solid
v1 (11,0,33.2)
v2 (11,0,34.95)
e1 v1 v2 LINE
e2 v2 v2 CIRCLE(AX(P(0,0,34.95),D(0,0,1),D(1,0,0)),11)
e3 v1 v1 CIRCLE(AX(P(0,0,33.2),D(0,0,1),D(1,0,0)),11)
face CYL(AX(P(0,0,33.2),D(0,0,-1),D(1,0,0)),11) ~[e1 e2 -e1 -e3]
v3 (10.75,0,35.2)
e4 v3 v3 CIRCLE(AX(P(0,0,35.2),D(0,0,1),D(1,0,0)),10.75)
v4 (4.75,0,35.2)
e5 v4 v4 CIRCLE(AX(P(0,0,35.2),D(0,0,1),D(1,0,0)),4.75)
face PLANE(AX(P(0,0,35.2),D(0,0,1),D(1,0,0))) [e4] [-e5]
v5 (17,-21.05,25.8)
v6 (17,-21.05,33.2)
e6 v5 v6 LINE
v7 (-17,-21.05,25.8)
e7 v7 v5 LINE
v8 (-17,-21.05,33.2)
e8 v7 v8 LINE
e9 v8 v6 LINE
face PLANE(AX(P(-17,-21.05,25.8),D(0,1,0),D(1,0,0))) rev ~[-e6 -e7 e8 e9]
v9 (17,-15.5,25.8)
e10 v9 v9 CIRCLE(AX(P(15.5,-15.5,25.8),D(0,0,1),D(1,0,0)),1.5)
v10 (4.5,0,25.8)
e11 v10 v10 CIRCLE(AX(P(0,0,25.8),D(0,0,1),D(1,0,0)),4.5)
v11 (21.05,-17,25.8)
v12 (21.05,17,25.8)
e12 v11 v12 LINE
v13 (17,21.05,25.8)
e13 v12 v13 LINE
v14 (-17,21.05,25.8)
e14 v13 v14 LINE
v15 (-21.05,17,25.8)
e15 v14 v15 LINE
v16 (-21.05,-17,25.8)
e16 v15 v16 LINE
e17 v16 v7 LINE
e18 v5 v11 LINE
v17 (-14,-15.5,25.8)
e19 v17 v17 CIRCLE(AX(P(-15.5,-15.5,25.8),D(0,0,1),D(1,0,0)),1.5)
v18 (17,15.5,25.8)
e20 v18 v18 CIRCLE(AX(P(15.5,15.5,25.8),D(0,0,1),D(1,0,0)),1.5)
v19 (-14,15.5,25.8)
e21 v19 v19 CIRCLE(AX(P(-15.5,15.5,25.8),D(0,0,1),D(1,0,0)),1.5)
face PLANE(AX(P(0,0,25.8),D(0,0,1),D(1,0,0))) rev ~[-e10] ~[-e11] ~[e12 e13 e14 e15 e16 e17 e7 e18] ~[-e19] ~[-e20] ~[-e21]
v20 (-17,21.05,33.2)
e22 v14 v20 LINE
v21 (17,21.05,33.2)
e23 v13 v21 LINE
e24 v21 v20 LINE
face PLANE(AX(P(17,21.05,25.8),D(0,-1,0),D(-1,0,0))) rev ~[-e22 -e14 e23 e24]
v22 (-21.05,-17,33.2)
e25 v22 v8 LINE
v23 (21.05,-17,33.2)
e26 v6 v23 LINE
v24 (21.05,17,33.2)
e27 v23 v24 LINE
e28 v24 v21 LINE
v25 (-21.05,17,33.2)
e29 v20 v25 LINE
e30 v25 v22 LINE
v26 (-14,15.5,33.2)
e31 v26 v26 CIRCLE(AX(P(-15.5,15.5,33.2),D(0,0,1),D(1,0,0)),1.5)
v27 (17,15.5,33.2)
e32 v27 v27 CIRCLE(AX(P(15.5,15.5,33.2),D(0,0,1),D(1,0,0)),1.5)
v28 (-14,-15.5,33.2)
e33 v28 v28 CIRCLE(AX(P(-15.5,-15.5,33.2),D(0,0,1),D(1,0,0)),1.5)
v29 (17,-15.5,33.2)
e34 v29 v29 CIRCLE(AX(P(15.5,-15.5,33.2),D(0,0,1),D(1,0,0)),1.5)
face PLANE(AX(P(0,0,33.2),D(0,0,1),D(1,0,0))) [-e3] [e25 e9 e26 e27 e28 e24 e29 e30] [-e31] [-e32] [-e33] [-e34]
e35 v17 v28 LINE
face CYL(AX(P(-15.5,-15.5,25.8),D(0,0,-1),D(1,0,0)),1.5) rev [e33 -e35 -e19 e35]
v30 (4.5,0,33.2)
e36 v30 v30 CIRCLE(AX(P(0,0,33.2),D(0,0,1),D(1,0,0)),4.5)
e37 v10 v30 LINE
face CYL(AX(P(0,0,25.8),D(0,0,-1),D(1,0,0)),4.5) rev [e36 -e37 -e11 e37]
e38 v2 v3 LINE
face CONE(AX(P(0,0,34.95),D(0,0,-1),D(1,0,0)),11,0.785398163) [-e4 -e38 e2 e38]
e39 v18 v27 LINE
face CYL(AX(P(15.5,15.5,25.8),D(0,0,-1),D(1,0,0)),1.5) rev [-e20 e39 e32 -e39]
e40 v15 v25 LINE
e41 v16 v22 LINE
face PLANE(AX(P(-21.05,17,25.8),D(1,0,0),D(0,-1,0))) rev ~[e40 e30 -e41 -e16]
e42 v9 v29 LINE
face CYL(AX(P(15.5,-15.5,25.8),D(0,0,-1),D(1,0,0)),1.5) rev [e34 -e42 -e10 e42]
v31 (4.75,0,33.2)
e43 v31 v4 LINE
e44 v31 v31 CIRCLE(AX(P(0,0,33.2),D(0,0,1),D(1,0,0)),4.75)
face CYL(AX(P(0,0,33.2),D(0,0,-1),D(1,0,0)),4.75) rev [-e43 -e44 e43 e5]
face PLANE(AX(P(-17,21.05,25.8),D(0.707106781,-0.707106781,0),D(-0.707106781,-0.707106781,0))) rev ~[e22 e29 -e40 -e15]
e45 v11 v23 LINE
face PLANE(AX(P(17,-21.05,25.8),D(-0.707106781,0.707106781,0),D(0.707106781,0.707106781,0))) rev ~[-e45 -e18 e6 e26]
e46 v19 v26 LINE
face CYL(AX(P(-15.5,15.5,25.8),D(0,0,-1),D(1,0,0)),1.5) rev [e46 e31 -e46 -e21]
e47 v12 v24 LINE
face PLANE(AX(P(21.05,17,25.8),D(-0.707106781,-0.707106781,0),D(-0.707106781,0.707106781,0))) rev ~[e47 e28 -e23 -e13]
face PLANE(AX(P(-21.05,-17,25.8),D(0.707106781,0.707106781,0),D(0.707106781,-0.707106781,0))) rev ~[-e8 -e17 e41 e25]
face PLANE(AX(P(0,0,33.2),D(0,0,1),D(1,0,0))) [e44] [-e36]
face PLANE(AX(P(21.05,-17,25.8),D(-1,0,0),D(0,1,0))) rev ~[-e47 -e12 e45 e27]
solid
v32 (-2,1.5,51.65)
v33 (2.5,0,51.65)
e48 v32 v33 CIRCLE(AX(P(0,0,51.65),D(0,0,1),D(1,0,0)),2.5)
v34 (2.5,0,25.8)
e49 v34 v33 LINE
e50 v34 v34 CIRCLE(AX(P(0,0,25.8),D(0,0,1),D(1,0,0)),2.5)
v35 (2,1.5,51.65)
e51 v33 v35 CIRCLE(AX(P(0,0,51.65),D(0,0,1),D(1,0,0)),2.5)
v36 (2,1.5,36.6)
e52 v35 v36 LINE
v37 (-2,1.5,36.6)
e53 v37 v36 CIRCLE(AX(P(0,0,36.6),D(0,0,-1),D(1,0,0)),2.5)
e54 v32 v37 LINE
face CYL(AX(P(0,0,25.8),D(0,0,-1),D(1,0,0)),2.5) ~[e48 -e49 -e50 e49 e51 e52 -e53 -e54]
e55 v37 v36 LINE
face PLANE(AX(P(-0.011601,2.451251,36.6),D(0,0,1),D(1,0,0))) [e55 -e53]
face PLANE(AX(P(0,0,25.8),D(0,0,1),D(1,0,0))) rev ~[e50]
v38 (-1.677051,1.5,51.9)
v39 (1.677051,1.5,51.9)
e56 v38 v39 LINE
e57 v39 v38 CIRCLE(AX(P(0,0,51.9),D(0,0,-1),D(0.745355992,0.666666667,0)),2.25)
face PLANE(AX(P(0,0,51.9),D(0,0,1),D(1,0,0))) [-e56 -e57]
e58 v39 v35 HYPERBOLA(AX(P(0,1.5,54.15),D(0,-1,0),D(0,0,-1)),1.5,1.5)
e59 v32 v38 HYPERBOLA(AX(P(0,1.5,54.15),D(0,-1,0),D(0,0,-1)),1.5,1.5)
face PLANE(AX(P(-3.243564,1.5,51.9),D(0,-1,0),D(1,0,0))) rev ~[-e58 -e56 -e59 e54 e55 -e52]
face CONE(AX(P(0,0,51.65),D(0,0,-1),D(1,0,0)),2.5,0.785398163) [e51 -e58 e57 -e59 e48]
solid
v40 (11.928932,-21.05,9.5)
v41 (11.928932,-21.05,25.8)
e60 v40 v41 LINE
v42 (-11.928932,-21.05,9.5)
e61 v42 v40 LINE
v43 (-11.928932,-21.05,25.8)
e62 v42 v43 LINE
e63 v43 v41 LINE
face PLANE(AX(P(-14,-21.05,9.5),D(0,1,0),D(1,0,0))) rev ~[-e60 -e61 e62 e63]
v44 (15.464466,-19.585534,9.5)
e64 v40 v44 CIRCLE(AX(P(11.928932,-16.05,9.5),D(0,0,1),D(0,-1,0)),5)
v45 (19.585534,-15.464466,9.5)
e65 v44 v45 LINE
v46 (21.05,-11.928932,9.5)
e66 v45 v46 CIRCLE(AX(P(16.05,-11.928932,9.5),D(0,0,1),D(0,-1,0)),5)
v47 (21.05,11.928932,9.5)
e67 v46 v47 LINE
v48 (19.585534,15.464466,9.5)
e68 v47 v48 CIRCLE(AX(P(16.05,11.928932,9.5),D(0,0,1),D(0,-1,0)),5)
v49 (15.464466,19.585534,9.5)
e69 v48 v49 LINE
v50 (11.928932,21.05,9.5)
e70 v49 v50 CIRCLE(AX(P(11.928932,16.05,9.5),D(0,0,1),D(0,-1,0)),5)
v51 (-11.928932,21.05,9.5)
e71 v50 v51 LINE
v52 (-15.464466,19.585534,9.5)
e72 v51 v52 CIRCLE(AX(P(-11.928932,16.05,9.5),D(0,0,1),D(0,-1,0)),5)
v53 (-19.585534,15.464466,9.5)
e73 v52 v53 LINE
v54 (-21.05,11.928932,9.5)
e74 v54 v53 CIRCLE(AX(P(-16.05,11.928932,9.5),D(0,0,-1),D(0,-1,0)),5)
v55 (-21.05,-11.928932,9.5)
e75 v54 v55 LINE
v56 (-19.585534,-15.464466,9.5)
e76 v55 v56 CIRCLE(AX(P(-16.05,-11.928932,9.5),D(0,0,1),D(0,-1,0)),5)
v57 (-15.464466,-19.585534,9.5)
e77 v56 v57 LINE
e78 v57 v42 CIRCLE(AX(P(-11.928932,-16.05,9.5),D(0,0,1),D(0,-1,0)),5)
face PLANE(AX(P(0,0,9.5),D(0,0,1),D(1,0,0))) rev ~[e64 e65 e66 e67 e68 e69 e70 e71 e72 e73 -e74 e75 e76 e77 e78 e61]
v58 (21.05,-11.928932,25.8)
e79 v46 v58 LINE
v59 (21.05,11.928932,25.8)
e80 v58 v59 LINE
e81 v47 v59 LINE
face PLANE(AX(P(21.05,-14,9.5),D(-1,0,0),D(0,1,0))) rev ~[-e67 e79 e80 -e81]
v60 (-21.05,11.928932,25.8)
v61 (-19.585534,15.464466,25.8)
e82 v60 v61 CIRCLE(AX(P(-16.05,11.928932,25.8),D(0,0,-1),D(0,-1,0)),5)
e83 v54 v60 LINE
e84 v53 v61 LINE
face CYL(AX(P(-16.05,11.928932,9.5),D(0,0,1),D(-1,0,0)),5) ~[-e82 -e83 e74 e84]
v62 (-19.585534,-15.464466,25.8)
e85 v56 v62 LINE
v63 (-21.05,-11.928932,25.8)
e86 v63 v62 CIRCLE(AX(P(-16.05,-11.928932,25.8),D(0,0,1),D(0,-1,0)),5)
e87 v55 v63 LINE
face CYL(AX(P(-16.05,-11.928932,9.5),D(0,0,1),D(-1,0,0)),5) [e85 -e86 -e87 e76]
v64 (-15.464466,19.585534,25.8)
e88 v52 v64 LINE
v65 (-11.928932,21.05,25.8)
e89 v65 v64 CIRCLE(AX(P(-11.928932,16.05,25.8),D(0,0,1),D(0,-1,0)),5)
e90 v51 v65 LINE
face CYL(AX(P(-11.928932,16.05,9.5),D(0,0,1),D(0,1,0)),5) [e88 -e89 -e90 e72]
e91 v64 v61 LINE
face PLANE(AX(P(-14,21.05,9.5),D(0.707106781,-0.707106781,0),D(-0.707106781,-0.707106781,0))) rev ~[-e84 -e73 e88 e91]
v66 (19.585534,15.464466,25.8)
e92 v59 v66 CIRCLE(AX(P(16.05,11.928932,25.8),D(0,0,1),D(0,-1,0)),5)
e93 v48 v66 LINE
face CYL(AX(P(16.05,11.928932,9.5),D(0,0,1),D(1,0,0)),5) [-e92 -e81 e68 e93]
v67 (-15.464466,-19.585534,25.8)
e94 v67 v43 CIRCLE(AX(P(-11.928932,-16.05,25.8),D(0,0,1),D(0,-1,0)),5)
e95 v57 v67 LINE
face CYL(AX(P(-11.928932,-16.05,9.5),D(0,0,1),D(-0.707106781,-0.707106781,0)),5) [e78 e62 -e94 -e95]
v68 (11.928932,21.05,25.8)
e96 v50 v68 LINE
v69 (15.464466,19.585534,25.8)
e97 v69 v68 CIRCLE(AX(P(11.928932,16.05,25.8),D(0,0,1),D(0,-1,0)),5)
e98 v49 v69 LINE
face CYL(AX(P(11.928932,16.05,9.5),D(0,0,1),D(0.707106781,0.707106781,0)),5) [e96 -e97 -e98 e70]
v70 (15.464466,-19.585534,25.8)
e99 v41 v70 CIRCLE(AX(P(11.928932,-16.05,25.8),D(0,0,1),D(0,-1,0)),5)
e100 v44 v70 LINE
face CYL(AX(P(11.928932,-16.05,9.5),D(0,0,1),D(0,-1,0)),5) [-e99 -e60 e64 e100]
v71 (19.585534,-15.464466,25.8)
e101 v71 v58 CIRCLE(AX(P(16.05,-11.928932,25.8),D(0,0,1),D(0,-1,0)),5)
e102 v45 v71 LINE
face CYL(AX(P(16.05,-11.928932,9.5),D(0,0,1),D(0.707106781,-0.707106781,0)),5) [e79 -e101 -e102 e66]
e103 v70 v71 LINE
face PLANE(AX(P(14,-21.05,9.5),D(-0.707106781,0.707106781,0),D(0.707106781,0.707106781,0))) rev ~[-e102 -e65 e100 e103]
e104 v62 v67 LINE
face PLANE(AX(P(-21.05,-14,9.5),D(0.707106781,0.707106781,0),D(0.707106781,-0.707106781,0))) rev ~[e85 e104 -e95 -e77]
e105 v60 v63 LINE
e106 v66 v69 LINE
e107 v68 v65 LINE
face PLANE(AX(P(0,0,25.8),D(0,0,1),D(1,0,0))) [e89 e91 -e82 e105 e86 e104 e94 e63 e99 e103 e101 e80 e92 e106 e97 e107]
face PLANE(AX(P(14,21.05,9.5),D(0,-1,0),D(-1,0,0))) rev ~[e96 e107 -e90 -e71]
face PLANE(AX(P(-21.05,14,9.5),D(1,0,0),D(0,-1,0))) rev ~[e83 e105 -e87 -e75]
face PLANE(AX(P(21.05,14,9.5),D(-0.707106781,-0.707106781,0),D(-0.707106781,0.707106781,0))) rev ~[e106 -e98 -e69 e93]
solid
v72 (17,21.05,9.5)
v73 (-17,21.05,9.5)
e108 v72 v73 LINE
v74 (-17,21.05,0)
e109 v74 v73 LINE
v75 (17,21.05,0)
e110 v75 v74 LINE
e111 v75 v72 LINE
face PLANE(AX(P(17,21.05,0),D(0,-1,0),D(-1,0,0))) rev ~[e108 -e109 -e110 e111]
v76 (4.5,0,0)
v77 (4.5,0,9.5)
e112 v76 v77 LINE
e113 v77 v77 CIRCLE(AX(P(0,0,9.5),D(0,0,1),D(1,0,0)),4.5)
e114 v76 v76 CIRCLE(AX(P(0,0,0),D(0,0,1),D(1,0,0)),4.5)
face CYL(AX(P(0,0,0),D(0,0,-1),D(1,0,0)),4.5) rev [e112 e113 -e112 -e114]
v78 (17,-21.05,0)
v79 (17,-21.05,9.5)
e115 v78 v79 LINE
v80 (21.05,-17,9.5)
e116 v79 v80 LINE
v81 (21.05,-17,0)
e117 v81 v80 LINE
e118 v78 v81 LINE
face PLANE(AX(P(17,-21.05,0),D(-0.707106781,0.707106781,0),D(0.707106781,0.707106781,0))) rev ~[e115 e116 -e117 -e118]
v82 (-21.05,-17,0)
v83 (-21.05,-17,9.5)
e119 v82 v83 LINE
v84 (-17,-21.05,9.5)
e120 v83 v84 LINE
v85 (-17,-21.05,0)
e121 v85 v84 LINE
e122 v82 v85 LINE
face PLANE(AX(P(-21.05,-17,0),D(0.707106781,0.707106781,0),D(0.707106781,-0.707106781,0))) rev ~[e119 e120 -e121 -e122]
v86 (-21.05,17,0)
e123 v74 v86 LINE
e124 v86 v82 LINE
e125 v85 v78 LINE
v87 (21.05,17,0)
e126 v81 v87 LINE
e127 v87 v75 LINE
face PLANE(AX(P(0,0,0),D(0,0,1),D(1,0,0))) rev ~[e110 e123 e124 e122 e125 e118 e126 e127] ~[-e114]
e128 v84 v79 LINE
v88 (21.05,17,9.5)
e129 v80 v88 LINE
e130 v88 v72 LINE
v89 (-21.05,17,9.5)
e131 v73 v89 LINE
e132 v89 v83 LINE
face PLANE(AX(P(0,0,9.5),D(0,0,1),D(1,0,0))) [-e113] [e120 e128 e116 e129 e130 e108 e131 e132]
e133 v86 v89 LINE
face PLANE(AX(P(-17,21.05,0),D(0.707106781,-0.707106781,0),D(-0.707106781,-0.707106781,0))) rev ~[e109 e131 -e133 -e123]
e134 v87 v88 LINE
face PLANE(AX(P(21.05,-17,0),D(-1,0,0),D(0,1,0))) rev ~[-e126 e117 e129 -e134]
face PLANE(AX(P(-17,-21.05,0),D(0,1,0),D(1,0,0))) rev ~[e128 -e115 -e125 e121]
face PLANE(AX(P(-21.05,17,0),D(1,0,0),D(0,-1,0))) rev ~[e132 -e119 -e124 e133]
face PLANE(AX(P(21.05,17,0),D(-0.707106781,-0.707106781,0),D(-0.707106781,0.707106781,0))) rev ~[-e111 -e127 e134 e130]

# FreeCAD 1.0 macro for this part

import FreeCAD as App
import Part
import Sketcher
from FreeCAD import Vector


def edges_at(feature, points):
    """Names of the edges that pass closest to the given points."""
    edges = feature.Shape.Edges
    near = lambda p: min(range(len(edges)), key=lambda i: edges[i].distToShape(Part.Vertex(*p))[0])
    return sorted({f"Edge{near(p) + 1}" for p in points})

doc = App.newDocument("Part")
body = doc.addObject("PartDesign::Body", "Body")

sketch1 = doc.addObject("Sketcher::SketchObject", "Sketch")
body.addObject(sketch1)
sketch1.AttachmentSupport = (doc.XY_Plane, [""])
sketch1.MapMode = "FlatFace"
sketch1.addGeometry([
    Part.LineSegment(Vector(17, 21.1, 0), Vector(-17, 21.1, 0)),
    Part.LineSegment(Vector(-17, 21.1, 0), Vector(-21.1, 17, 0)),
    Part.LineSegment(Vector(-21.1, 17, 0), Vector(-21.1, -17, 0)),
    Part.LineSegment(Vector(-21.1, -17, 0), Vector(-17, -21.1, 0)),
    Part.LineSegment(Vector(-17, -21.1, 0), Vector(17, -21.1, 0)),
    Part.LineSegment(Vector(17, -21.1, 0), Vector(21.1, -17, 0)),
    Part.LineSegment(Vector(21.1, -17, 0), Vector(21.1, 17, 0)),
    Part.LineSegment(Vector(21.1, 17, 0), Vector(17, 21.1, 0)),
    Part.Circle(Vector(0, 0, 0), Vector(0, 0, 1), 4.5),
], False)
sketch1.addConstraint([
    Sketcher.Constraint("Coincident", 0, 2, 1, 1),
    Sketcher.Constraint("Coincident", 1, 2, 2, 1),
    Sketcher.Constraint("Coincident", 2, 2, 3, 1),
    Sketcher.Constraint("Coincident", 3, 2, 4, 1),
    Sketcher.Constraint("Coincident", 4, 2, 5, 1),
    Sketcher.Constraint("Coincident", 5, 2, 6, 1),
    Sketcher.Constraint("Coincident", 6, 2, 7, 1),
    Sketcher.Constraint("Coincident", 7, 2, 0, 1),
    Sketcher.Constraint("Horizontal", 0),
    Sketcher.Constraint("Vertical", 2),
    Sketcher.Constraint("Horizontal", 4),
    Sketcher.Constraint("Vertical", 6),
    Sketcher.Constraint("Coincident", 8, 3, -1, 1),
    Sketcher.Constraint("Symmetric", 0, 2, 4, 2, -1, 1),
    Sketcher.Constraint("Symmetric", 1, 2, 5, 2, -1, 1),
    Sketcher.Constraint("Perpendicular", 1, 3),
    Sketcher.Constraint("Perpendicular", 5, 7),
    Sketcher.Constraint("Horizontal", 2, 2, 5, 2),
    Sketcher.Constraint("Horizontal", 1, 2, 6, 2),
    Sketcher.Constraint("Vertical", 0, 2, 3, 2),
    Sketcher.Constraint("Equal", 4, 2),
    Sketcher.Constraint("Diameter", 8, 9.0),
    Sketcher.Constraint("DistanceX", 0, 2, 0, 1, 34.0),
    Sketcher.Constraint("DistanceY", 3, 2, 0, 2, 42.1),
])
pad1 = doc.addObject("PartDesign::Pad", "Pad")
body.addObject(pad1)
pad1.Profile = sketch1
pad1.Length = 9.5
body2 = doc.addObject("PartDesign::Body", "Body001")

sketch2 = doc.addObject("Sketcher::SketchObject", "Sketch001")
body2.addObject(sketch2)
sketch2.AttachmentSupport = (doc.getObject("XY_Plane001"), [""])
sketch2.MapMode = "FlatFace"
sketch2.AttachmentOffset = App.Placement(Vector(0, 0, 9.5), App.Rotation())
sketch2.addGeometry([
    Part.LineSegment(Vector(-21, 14, 0), Vector(-21, -14, 0)),
    Part.LineSegment(Vector(-21, -14, 0), Vector(-14, -21, 0)),
    Part.LineSegment(Vector(-14, -21, 0), Vector(14, -21, 0)),
    Part.LineSegment(Vector(14, -21, 0), Vector(21, -14, 0)),
    Part.LineSegment(Vector(21, -14, 0), Vector(21, 14, 0)),
    Part.LineSegment(Vector(21, 14, 0), Vector(14, 21, 0)),
    Part.LineSegment(Vector(14, 21, 0), Vector(-14, 21, 0)),
    Part.LineSegment(Vector(-14, 21, 0), Vector(-21, 14, 0)),
], False)
sketch2.addConstraint([
    Sketcher.Constraint("Coincident", 0, 2, 1, 1),
    Sketcher.Constraint("Coincident", 1, 2, 2, 1),
    Sketcher.Constraint("Coincident", 2, 2, 3, 1),
    Sketcher.Constraint("Coincident", 3, 2, 4, 1),
    Sketcher.Constraint("Coincident", 4, 2, 5, 1),
    Sketcher.Constraint("Coincident", 5, 2, 6, 1),
    Sketcher.Constraint("Coincident", 6, 2, 7, 1),
    Sketcher.Constraint("Coincident", 7, 2, 0, 1),
    Sketcher.Constraint("Vertical", 0),
    Sketcher.Constraint("Horizontal", 2),
    Sketcher.Constraint("Vertical", 4),
    Sketcher.Constraint("Horizontal", 6),
    Sketcher.Constraint("Symmetric", 0, 2, 4, 2, -1, 1),
    Sketcher.Constraint("Symmetric", 1, 2, 5, 2, -1, 1),
    Sketcher.Constraint("Perpendicular", 1, 3),
    Sketcher.Constraint("Perpendicular", 5, 7),
    Sketcher.Constraint("Horizontal", 0, 2, 3, 2),
    Sketcher.Constraint("Horizontal", 4, 2, 7, 2),
    Sketcher.Constraint("Vertical", 2, 2, 5, 2),
    Sketcher.Constraint("Equal", 6, 0),
    Sketcher.Constraint("DistanceX", 2, 1, 2, 2, 28.0),
    Sketcher.Constraint("DistanceX", 0, 2, 3, 2, 42.1),
])
pad2 = doc.addObject("PartDesign::Pad", "Pad001")
body2.addObject(pad2)
pad2.Profile = sketch2
pad2.Length = 16.3
doc.recompute()

fillet = doc.addObject("PartDesign::Fillet", "Fillet")
body2.addObject(fillet)
fillet.Base = (pad2, edges_at(pad2, [
    (14, 21.05, 17.65),
    (21.05, 14, 17.65),
    (21.05, -14, 17.65),
    (14, -21.05, 17.65),
    (-14, -21.05, 17.65),
    (-21.05, -14, 17.65),
    (-21.05, 14, 17.65),
    (-14, 21.05, 17.65),
]))
fillet.Radius = 5
body3 = doc.addObject("PartDesign::Body", "Body002")

sketch3 = doc.addObject("Sketcher::SketchObject", "Sketch002")
body3.addObject(sketch3)
sketch3.AttachmentSupport = (doc.getObject("XY_Plane002"), [""])
sketch3.MapMode = "FlatFace"
sketch3.AttachmentOffset = App.Placement(Vector(0, 0, 25.8), App.Rotation())
sketch3.addGeometry([
    Part.LineSegment(Vector(17, 21.1, 0), Vector(-17, 21.1, 0)),
    Part.LineSegment(Vector(-17, 21.1, 0), Vector(-21.1, 17, 0)),
    Part.LineSegment(Vector(-21.1, 17, 0), Vector(-21.1, -17, 0)),
    Part.LineSegment(Vector(-21.1, -17, 0), Vector(-17, -21, 0)),
    Part.LineSegment(Vector(-17, -21, 0), Vector(17, -21, 0)),
    Part.LineSegment(Vector(17, -21, 0), Vector(21, -17, 0)),
    Part.LineSegment(Vector(21, -17, 0), Vector(21, 17, 0)),
    Part.LineSegment(Vector(21, 17, 0), Vector(17, 21.1, 0)),
    Part.Circle(Vector(-15.5, -15.5, 0), Vector(0, 0, 1), 1.5),
    Part.Circle(Vector(15.5, -15.5, 0), Vector(0, 0, 1), 1.5),
    Part.Circle(Vector(-15.5, 15.5, 0), Vector(0, 0, 1), 1.5),
    Part.Circle(Vector(0, 0, 0), Vector(0, 0, 1), 4.5),
    Part.Circle(Vector(15.5, 15.5, 0), Vector(0, 0, 1), 1.5),
], False)
sketch3.addConstraint([
    Sketcher.Constraint("Coincident", 0, 2, 1, 1),
    Sketcher.Constraint("Coincident", 1, 2, 2, 1),
    Sketcher.Constraint("Coincident", 2, 2, 3, 1),
    Sketcher.Constraint("Coincident", 3, 2, 4, 1),
    Sketcher.Constraint("Coincident", 4, 2, 5, 1),
    Sketcher.Constraint("Coincident", 5, 2, 6, 1),
    Sketcher.Constraint("Coincident", 6, 2, 7, 1),
    Sketcher.Constraint("Coincident", 7, 2, 0, 1),
    Sketcher.Constraint("Horizontal", 0),
    Sketcher.Constraint("Vertical", 2),
    Sketcher.Constraint("Horizontal", 4),
    Sketcher.Constraint("Vertical", 6),
    Sketcher.Constraint("Coincident", 11, 3, -1, 1),
    Sketcher.Constraint("Equal", 8, 9),
    Sketcher.Constraint("Equal", 9, 10),
    Sketcher.Constraint("Equal", 10, 12),
    Sketcher.Constraint("Symmetric", 9, 3, 10, 3, -1, 1),
    Sketcher.Constraint("Symmetric", 8, 3, 12, 3, -1, 1),
    Sketcher.Constraint("Symmetric", 0, 2, 4, 2, -1, 1),
    Sketcher.Constraint("Symmetric", 1, 2, 5, 2, -1, 1),
    Sketcher.Constraint("Symmetric", 8, 3, 9, 3, -2),
    Sketcher.Constraint("Perpendicular", 1, 3),
    Sketcher.Constraint("Perpendicular", 5, 7),
    Sketcher.Constraint("Horizontal", 2, 2, 5, 2),
    Sketcher.Constraint("Horizontal", 1, 2, 6, 2),
    Sketcher.Constraint("Vertical", 0, 2, 3, 2),
    Sketcher.Constraint("Equal", 4, 2),
    Sketcher.Constraint("Diameter", 8, 3.0),
    Sketcher.Constraint("Diameter", 11, 9.0),
    Sketcher.Constraint("DistanceX", 0, 2, 0, 1, 34.0),
    Sketcher.Constraint("DistanceX", 8, 3, 9, 3, 31.0),
    Sketcher.Constraint("DistanceY", 8, 3, 10, 3, 31.0),
    Sketcher.Constraint("DistanceY", -1, 1, 0, 2, 21.05),
])
pad3 = doc.addObject("PartDesign::Pad", "Pad002")
body3.addObject(pad3)
pad3.Profile = sketch3
pad3.Length = 7.4

sketch4 = doc.addObject("Sketcher::SketchObject", "Sketch003")
body3.addObject(sketch4)
sketch4.AttachmentSupport = (doc.getObject("XY_Plane002"), [""])
sketch4.MapMode = "FlatFace"
sketch4.AttachmentOffset = App.Placement(Vector(0, 0, 33.2), App.Rotation())
sketch4.addGeometry([
    Part.Circle(Vector(0, 0, 0), Vector(0, 0, 1), 11),
    Part.Circle(Vector(0, 0, 0), Vector(0, 0, 1), 4.8),
], False)
sketch4.addConstraint([
    Sketcher.Constraint("Coincident", 0, 3, -1, 1),
    Sketcher.Constraint("Coincident", 1, 3, -1, 1),
    Sketcher.Constraint("Diameter", 0, 22.0),
    Sketcher.Constraint("Diameter", 1, 9.5),
])
pad4 = doc.addObject("PartDesign::Pad", "Pad003")
body3.addObject(pad4)
pad4.Profile = sketch4
pad4.Length = 2
doc.recompute()

chamfer = doc.addObject("PartDesign::Chamfer", "Chamfer")
body3.addObject(chamfer)
chamfer.Base = (pad4, edges_at(pad4, [(-11, 0, 35.2)]))
chamfer.Size = 0.25
body4 = doc.addObject("PartDesign::Body", "Body003")

sketch5 = doc.addObject("Sketcher::SketchObject", "Sketch004")
body4.addObject(sketch5)
sketch5.AttachmentSupport = (doc.getObject("XY_Plane003"), [""])
sketch5.MapMode = "FlatFace"
sketch5.AttachmentOffset = App.Placement(Vector(0, 0, 25.8), App.Rotation())
sketch5.addGeometry(Part.Circle(Vector(0, 0, 0), Vector(0, 0, 1), 2.5), False)
sketch5.addConstraint([
    Sketcher.Constraint("Coincident", 0, 3, -1, 1),
    Sketcher.Constraint("Diameter", 0, 5.0),
])
pad5 = doc.addObject("PartDesign::Pad", "Pad004")
body4.addObject(pad5)
pad5.Profile = sketch5
pad5.Length = 26.1
doc.recompute()

chamfer2 = doc.addObject("PartDesign::Chamfer", "Chamfer001")
body4.addObject(chamfer2)
chamfer2.Base = (pad5, edges_at(pad5, [(-2.5, 0, 51.9)]))
chamfer2.Size = 0.25

sketch6 = doc.addObject("Sketcher::SketchObject", "Sketch005")
body4.addObject(sketch6)
sketch6.AttachmentSupport = (doc.getObject("XY_Plane003"), [""])
sketch6.MapMode = "FlatFace"
sketch6.AttachmentOffset = App.Placement(Vector(0, 0, 51.9), App.Rotation())
sketch6.addGeometry([
    Part.LineSegment(Vector(-3.2, 3.4, 0), Vector(-3.2, 1.5, 0)),
    Part.LineSegment(Vector(-3.2, 1.5, 0), Vector(3.2, 1.5, 0)),
    Part.LineSegment(Vector(3.2, 1.5, 0), Vector(3.2, 3.4, 0)),
    Part.LineSegment(Vector(3.2, 3.4, 0), Vector(-3.2, 3.4, 0)),
], False)
sketch6.addConstraint([
    Sketcher.Constraint("Coincident", 0, 2, 1, 1),
    Sketcher.Constraint("Coincident", 1, 2, 2, 1),
    Sketcher.Constraint("Coincident", 2, 2, 3, 1),
    Sketcher.Constraint("Coincident", 3, 2, 0, 1),
    Sketcher.Constraint("Vertical", 0),
    Sketcher.Constraint("Horizontal", 1),
    Sketcher.Constraint("Vertical", 2),
    Sketcher.Constraint("Horizontal", 3),
    Sketcher.Constraint("DistanceY", -1, 1, 0, 2, 1.5),
    Sketcher.Constraint("DistanceX", 1, 1, 1, 2, 6.463925),
    Sketcher.Constraint("DistanceY", 0, 2, 0, 1, 1.902503),
    Sketcher.Constraint("DistanceX", -1, 1, 1, 2, 3.220361),
])
pocket1 = doc.addObject("PartDesign::Pocket", "Pocket")
body4.addObject(pocket1)
pocket1.Profile = sketch6
pocket1.Length = 15.3

doc.recompute()
